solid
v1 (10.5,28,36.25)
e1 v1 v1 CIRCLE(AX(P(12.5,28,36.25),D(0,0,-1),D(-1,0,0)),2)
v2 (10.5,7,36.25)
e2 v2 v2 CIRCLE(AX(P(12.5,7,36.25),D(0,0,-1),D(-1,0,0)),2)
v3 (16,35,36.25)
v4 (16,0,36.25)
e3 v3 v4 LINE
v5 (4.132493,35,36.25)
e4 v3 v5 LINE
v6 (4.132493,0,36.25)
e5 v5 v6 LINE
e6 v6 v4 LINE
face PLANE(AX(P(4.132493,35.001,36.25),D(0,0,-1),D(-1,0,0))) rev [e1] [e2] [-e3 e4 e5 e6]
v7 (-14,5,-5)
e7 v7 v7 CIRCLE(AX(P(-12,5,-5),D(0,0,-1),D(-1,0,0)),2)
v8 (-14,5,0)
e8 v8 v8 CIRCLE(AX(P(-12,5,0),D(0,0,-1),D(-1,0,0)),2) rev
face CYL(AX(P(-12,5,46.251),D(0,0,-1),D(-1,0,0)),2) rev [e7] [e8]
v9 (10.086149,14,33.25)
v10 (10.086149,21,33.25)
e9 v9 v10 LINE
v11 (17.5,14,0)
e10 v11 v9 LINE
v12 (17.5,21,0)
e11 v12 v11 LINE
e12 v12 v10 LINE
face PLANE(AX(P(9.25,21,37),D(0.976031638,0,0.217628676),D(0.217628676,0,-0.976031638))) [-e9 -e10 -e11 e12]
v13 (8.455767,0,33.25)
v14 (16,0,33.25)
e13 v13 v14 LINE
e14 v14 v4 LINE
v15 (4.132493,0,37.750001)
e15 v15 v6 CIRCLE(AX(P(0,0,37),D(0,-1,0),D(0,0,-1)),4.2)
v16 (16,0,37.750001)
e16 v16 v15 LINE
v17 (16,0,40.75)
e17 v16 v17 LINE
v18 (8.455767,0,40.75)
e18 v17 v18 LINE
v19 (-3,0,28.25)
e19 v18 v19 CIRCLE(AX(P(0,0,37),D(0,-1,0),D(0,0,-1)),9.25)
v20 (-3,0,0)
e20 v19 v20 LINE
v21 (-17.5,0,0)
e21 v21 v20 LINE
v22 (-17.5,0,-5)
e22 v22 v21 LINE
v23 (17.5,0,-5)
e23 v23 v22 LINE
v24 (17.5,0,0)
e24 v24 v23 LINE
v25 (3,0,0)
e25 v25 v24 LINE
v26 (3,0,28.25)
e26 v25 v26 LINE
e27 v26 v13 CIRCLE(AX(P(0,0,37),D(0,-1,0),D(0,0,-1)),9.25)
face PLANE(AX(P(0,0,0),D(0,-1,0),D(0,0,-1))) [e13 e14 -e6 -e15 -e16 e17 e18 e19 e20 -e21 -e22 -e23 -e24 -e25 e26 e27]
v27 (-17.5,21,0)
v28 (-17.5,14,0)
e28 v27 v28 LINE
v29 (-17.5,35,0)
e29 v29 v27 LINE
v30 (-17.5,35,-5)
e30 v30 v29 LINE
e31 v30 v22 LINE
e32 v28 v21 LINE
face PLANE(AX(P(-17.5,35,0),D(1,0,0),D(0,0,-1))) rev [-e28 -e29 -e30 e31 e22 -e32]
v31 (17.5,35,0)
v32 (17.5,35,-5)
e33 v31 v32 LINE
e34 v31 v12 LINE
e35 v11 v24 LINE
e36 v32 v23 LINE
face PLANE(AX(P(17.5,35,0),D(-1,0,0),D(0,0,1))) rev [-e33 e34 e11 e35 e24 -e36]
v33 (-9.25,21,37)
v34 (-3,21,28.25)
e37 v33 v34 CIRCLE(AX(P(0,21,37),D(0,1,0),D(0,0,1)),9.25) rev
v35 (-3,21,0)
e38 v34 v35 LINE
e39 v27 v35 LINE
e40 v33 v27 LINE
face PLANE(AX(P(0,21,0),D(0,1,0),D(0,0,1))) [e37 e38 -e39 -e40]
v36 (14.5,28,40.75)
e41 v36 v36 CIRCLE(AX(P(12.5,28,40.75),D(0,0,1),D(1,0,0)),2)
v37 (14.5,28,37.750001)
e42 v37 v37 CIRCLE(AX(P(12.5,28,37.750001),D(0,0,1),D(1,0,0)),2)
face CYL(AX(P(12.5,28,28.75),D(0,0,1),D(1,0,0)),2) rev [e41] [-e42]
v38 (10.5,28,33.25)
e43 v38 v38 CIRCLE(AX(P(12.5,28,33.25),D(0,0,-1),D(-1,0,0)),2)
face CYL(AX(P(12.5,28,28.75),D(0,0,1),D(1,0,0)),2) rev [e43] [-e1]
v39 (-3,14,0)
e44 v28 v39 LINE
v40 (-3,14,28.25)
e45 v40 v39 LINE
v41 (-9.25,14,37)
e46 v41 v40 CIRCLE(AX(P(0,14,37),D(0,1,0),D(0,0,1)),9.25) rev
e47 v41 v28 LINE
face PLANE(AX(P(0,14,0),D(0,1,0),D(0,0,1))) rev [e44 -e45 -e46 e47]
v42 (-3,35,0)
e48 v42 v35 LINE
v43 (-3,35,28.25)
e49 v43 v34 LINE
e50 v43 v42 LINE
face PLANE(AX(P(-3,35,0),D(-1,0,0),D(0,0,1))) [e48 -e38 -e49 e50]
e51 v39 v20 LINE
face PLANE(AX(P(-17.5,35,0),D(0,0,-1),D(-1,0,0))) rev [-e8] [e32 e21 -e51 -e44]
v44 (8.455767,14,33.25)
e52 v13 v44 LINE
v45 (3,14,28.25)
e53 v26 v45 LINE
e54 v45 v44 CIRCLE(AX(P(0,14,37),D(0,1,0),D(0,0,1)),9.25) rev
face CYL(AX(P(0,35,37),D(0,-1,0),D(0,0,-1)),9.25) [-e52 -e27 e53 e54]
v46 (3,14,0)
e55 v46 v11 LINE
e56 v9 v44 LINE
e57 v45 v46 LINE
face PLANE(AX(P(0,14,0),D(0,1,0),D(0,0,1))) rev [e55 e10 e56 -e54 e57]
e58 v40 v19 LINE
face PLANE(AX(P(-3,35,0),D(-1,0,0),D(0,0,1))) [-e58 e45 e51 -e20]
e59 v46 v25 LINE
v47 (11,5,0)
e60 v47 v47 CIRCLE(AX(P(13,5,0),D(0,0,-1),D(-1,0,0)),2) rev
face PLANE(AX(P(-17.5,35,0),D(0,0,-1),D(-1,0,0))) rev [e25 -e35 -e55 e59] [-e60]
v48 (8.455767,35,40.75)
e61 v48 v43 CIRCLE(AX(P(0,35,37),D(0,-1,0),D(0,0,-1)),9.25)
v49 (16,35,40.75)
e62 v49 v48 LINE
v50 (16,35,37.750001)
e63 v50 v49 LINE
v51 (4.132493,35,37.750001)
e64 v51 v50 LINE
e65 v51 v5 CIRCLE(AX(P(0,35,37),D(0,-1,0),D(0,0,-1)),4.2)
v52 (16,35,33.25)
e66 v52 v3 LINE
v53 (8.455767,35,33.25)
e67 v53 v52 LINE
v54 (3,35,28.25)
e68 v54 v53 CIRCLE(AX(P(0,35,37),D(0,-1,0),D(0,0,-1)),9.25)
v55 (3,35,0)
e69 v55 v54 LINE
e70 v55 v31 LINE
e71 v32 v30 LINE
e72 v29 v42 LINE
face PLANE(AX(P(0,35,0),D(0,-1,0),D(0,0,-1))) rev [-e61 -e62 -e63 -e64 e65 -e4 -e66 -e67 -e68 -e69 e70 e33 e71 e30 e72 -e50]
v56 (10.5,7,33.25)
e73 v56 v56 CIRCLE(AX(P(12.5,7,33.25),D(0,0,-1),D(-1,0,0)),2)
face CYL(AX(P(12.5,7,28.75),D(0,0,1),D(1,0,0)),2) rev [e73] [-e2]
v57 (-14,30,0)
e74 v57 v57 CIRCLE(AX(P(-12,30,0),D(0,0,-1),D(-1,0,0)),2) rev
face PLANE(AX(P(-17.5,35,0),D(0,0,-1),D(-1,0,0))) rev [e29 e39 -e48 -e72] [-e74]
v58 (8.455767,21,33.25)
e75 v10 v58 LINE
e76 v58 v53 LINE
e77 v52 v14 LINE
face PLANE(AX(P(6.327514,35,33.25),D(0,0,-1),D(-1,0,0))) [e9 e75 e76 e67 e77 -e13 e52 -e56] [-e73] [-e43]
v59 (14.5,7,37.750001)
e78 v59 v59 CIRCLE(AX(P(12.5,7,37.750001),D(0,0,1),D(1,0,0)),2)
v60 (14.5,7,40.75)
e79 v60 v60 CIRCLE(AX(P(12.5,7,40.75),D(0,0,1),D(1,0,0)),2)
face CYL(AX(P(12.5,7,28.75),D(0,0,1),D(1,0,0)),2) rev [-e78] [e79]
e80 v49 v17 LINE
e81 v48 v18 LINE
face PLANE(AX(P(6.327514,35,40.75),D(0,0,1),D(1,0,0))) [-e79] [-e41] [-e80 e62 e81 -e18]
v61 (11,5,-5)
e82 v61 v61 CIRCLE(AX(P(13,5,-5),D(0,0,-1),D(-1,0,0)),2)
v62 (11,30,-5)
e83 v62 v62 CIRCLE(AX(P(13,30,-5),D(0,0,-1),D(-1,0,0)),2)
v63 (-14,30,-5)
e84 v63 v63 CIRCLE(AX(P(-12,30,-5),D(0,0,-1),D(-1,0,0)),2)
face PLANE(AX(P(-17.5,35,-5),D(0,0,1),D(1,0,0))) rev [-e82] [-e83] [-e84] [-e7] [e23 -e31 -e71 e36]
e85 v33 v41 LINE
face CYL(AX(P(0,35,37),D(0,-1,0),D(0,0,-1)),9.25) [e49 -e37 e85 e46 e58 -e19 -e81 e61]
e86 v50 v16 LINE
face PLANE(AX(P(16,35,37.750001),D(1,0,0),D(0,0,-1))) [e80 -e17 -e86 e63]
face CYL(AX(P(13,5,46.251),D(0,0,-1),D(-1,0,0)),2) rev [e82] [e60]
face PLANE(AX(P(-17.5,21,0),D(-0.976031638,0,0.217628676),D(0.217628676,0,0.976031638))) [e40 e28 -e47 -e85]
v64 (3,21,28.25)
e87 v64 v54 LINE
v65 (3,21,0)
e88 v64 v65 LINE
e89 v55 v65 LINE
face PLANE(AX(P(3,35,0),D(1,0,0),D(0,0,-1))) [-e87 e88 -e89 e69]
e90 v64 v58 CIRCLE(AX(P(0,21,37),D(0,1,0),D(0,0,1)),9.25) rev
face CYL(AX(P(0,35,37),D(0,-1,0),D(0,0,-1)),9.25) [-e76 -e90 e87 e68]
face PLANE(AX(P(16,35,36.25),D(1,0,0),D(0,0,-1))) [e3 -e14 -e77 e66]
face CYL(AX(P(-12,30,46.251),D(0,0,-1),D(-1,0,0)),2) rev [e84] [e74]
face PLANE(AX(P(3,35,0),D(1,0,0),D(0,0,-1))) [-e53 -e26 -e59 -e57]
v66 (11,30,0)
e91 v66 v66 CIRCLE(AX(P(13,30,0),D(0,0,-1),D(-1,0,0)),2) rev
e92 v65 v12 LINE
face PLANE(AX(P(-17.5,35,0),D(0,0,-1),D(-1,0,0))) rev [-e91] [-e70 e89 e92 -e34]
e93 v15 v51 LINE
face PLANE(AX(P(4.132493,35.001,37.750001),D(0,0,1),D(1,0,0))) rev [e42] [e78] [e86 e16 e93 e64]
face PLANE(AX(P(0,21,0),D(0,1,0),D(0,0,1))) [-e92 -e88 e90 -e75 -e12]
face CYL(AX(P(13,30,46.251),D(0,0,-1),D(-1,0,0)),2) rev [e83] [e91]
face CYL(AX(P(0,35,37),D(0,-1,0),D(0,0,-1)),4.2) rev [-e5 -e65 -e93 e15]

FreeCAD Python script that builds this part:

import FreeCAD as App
import Part
import Sketcher

V = App.Vector
Q = App.Units.Quantity

doc = App.newDocument("Part")
body = doc.addObject("PartDesign::Body", "Body")

# Sketch on XZ plane
sketch1 = body.newObject("Sketcher::SketchObject", "Sketch")
sketch1.AttachmentSupport = (doc.getObject("XZ_Plane"), [""])
sketch1.MapMode = "FlatFace"
sketch1.addGeometry(Part.LineSegment(V(-17.5, -5, 0), V(-17.5, 0, 0)), False)
sketch1.addGeometry(Part.LineSegment(V(-17.5, 0, 0), V(17.5, 0, 0)), False)
sketch1.addGeometry(Part.LineSegment(V(17.5, 0, 0), V(17.5, -5, 0)), False)
sketch1.addGeometry(Part.LineSegment(V(17.5, -5, 0), V(-17.5, -5, 0)), False)
sketch1.addConstraint(Sketcher.Constraint("Coincident", 0, 2, 1, 1))
sketch1.addConstraint(Sketcher.Constraint("Coincident", 1, 2, 2, 1))
sketch1.addConstraint(Sketcher.Constraint("Coincident", 2, 2, 3, 1))
sketch1.addConstraint(Sketcher.Constraint("Coincident", 3, 2, 0, 1))
sketch1.addConstraint(Sketcher.Constraint("Vertical", 0))
sketch1.addConstraint(Sketcher.Constraint("Horizontal", 1))
sketch1.addConstraint(Sketcher.Constraint("Vertical", 2))
sketch1.addConstraint(Sketcher.Constraint("Horizontal", 3))
sketch1.addConstraint(Sketcher.Constraint("Symmetric", 0, 2, 1, 2, -1, 1))
sketch1.addConstraint(Sketcher.Constraint("DistanceX", 1, 1, 1, 2, Q("35 mm")))
sketch1.addConstraint(Sketcher.Constraint("DistanceY", 0, 1, 0, 2, Q("5 mm")))
pad1 = body.newObject("PartDesign::Pad", "Pad")
pad1.Profile = sketch1
pad1.Length = 35
pad1.Reversed = True
body2 = doc.addObject("PartDesign::Body", "Body001")

# Sketch on XZ plane
sketch2 = body2.newObject("Sketcher::SketchObject", "Sketch001")
sketch2.AttachmentSupport = (doc.getObject("XZ_Plane001"), [""])
sketch2.MapMode = "FlatFace"
sketch2.addGeometry(Part.Circle(V(0, 37, 0), V(0, 0, 1), 9.25), False)
sketch2.addGeometry(Part.Circle(V(0, 37, 0), V(0, 0, 1), 4.2), False)
sketch2.addConstraint(Sketcher.Constraint("Coincident", 1, 3, 0, 3))
sketch2.addConstraint(Sketcher.Constraint("PointOnObject", 0, 3, -2))
sketch2.addConstraint(Sketcher.Constraint("Diameter", 0, Q("18.5 mm")))
sketch2.addConstraint(Sketcher.Constraint("Diameter", 1, Q("8.4 mm")))
sketch2.addConstraint(Sketcher.Constraint("DistanceY", -1, 1, 0, 3, Q("37 mm")))
pad2 = body2.newObject("PartDesign::Pad", "Pad001")
pad2.Profile = sketch2
pad2.Length = 35
pad2.Reversed = True
body.AllowCompound = True
doc.recompute()

boolean = body.newObject("PartDesign::Boolean", "Boolean")
boolean.Type = "Fuse"
boolean.addObjects([body2])

# Sketch on XZ plane
sketch3 = body.newObject("Sketcher::SketchObject", "Sketch002")
sketch3.AttachmentSupport = (doc.getObject("XZ_Plane"), [""])
sketch3.MapMode = "FlatFace"
sketch3.addGeometry(Part.LineSegment(V(-3, 30.710294, 0), V(-3, 0, 0)), False)
sketch3.addGeometry(Part.LineSegment(V(-3, 0, 0), V(3, 0, 0)), False)
sketch3.addGeometry(Part.LineSegment(V(3, 0, 0), V(3, 30.710294, 0)), False)
sketch3.addGeometry(Part.LineSegment(V(3, 30.710294, 0), V(-3, 30.710294, 0)), False)
sketch3.addConstraint(Sketcher.Constraint("Coincident", 0, 2, 1, 1))
sketch3.addConstraint(Sketcher.Constraint("Coincident", 1, 2, 2, 1))
sketch3.addConstraint(Sketcher.Constraint("Coincident", 2, 2, 3, 1))
sketch3.addConstraint(Sketcher.Constraint("Coincident", 3, 2, 0, 1))
sketch3.addConstraint(Sketcher.Constraint("Vertical", 0))
sketch3.addConstraint(Sketcher.Constraint("Horizontal", 1))
sketch3.addConstraint(Sketcher.Constraint("Vertical", 2))
sketch3.addConstraint(Sketcher.Constraint("Horizontal", 3))
sketch3.addConstraint(Sketcher.Constraint("Symmetric", 0, 2, 1, 2, -1, 1))
sketch3.addConstraint(Sketcher.Constraint("DistanceX", 1, 1, 1, 2, Q("6 mm")))
sketch3.addConstraint(Sketcher.Constraint("DistanceY", 0, 2, 0, 1, Q("30.710294 mm")))
pad3 = body.newObject("PartDesign::Pad", "Pad002")
pad3.Profile = sketch3
pad3.Length = 35
pad3.Reversed = True

# Sketch on XZ plane
sketch4 = body.newObject("Sketcher::SketchObject", "Sketch003")
sketch4.AttachmentSupport = (doc.getObject("XZ_Plane"), [""])
sketch4.MapMode = "FlatFace"
sketch4.AttachmentOffset = App.Placement(V(0, 0, -14), App.Rotation())
sketch4.addGeometry(Part.LineSegment(V(-17.5, 0, 0), V(0, 0, 0)), False)
sketch4.addGeometry(Part.LineSegment(V(0, 0, 0), V(-3, 28.25, 0)), False)
sketch4.addGeometry(Part.LineSegment(V(-3, 28.25, 0), V(-9.25, 37, 0)), False)
sketch4.addGeometry(Part.LineSegment(V(-9.25, 37, 0), V(-17.5, 0, 0)), False)
sketch4.addGeometry(Part.LineSegment(V(3, 28.25, 0), V(3, 0, 0)), False)
sketch4.addGeometry(Part.LineSegment(V(3, 0, 0), V(17.5, 0, 0)), False)
sketch4.addGeometry(Part.LineSegment(V(17.5, 0, 0), V(9.25, 37, 0)), False)
sketch4.addGeometry(Part.LineSegment(V(9.25, 37, 0), V(3, 28.25, 0)), False)
sketch4.addConstraint(Sketcher.Constraint("Coincident", 0, 2, 1, 1))
sketch4.addConstraint(Sketcher.Constraint("Coincident", 1, 2, 2, 1))
sketch4.addConstraint(Sketcher.Constraint("Coincident", 2, 2, 3, 1))
sketch4.addConstraint(Sketcher.Constraint("Coincident", 3, 2, 0, 1))
sketch4.addConstraint(Sketcher.Constraint("Coincident", 4, 2, 5, 1))
sketch4.addConstraint(Sketcher.Constraint("Coincident", 5, 2, 6, 1))
sketch4.addConstraint(Sketcher.Constraint("Coincident", 6, 2, 7, 1))
sketch4.addConstraint(Sketcher.Constraint("Coincident", 7, 2, 4, 1))
sketch4.addConstraint(Sketcher.Constraint("Horizontal", 0))
sketch4.addConstraint(Sketcher.Constraint("Vertical", 4))
sketch4.addConstraint(Sketcher.Constraint("Horizontal", 5))
sketch4.addConstraint(Sketcher.Constraint("Coincident", 0, 2, -1, 1))
sketch4.addConstraint(Sketcher.Constraint("Symmetric", 3, 2, 5, 2, -1, 1))
sketch4.addConstraint(Sketcher.Constraint("Symmetric", 2, 2, 6, 2, -2))
sketch4.addConstraint(Sketcher.Constraint("Symmetric", 1, 2, 7, 2, -2))
sketch4.addConstraint(Sketcher.Constraint("DistanceX", 0, 1, 0, 2, Q("17.5 mm")))
sketch4.addConstraint(Sketcher.Constraint("DistanceX", 5, 1, 5, 2, Q("14.5 mm")))
sketch4.addConstraint(Sketcher.Constraint("DistanceY", -1, 1, 2, 2, Q("37 mm")))
sketch4.addConstraint(Sketcher.Constraint("DistanceY", 4, 2, 4, 1, Q("28.25 mm")))
sketch4.addConstraint(Sketcher.Constraint("DistanceX", 2, 2, 6, 2, Q("18.5 mm")))
pad4 = body.newObject("PartDesign::Pad", "Pad003")
pad4.Profile = sketch4
pad4.Length = 7
pad4.Reversed = True

# Sketch on XY plane
sketch5 = body.newObject("Sketcher::SketchObject", "Sketch004")
sketch5.AttachmentSupport = (doc.getObject("XY_Plane"), [""])
sketch5.MapMode = "FlatFace"
sketch5.AttachmentOffset = App.Placement(V(0, 0, -5), App.Rotation())
sketch5.addGeometry(Part.Circle(V(13, 30, 0), V(0, 0, 1), 2), False)
sketch5.addConstraint(Sketcher.Constraint("Diameter", 0, Q("4 mm")))
sketch5.addConstraint(Sketcher.Constraint("DistanceX", -1, 1, 0, 3, Q("13 mm")))
sketch5.addConstraint(Sketcher.Constraint("DistanceY", -1, 1, 0, 3, Q("30 mm")))
pocket1 = body.newObject("PartDesign::Pocket", "Pocket")
pocket1.Profile = sketch5
pocket1.Type = "UpToFirst"
pocket1.Reversed = True

# Sketch on XY plane
sketch6 = body.newObject("Sketcher::SketchObject", "Sketch005")
sketch6.AttachmentSupport = (doc.getObject("XY_Plane"), [""])
sketch6.MapMode = "FlatFace"
sketch6.AttachmentOffset = App.Placement(V(0, 0, -5), App.Rotation())
sketch6.addGeometry(Part.Circle(V(-12, 30, 0), V(0, 0, 1), 2), False)
sketch6.addConstraint(Sketcher.Constraint("Diameter", 0, Q("4 mm")))
sketch6.addConstraint(Sketcher.Constraint("DistanceX", 0, 3, -1, 1, Q("12 mm")))
sketch6.addConstraint(Sketcher.Constraint("DistanceY", -1, 1, 0, 3, Q("30 mm")))
pocket2 = body.newObject("PartDesign::Pocket", "Pocket001")
pocket2.Profile = sketch6
pocket2.Type = "UpToFirst"
pocket2.Reversed = True

# Sketch on XY plane
sketch7 = body.newObject("Sketcher::SketchObject", "Sketch006")
sketch7.AttachmentSupport = (doc.getObject("XY_Plane"), [""])
sketch7.MapMode = "FlatFace"
sketch7.AttachmentOffset = App.Placement(V(0, 0, -5), App.Rotation())
sketch7.addGeometry(Part.Circle(V(-12, 5, 0), V(0, 0, 1), 2), False)
sketch7.addConstraint(Sketcher.Constraint("Diameter", 0, Q("4 mm")))
sketch7.addConstraint(Sketcher.Constraint("DistanceX", 0, 3, -1, 1, Q("12 mm")))
sketch7.addConstraint(Sketcher.Constraint("DistanceY", -1, 1, 0, 3, Q("5 mm")))
pocket3 = body.newObject("PartDesign::Pocket", "Pocket002")
pocket3.Profile = sketch7
pocket3.Type = "UpToFirst"
pocket3.Reversed = True

# Sketch on XY plane
sketch8 = body.newObject("Sketcher::SketchObject", "Sketch007")
sketch8.AttachmentSupport = (doc.getObject("XY_Plane"), [""])
sketch8.MapMode = "FlatFace"
sketch8.AttachmentOffset = App.Placement(V(0, 0, -5), App.Rotation())
sketch8.addGeometry(Part.Circle(V(13, 5, 0), V(0, 0, 1), 2), False)
sketch8.addConstraint(Sketcher.Constraint("Diameter", 0, Q("4 mm")))
sketch8.addConstraint(Sketcher.Constraint("DistanceX", -1, 1, 0, 3, Q("13 mm")))
sketch8.addConstraint(Sketcher.Constraint("DistanceY", -1, 1, 0, 3, Q("5 mm")))
pocket4 = body.newObject("PartDesign::Pocket", "Pocket003")
pocket4.Profile = sketch8
pocket4.Type = "UpToFirst"
pocket4.Reversed = True

# Sketch on XZ plane
sketch9 = body.newObject("Sketcher::SketchObject", "Sketch008")
sketch9.AttachmentSupport = (doc.getObject("XZ_Plane"), [""])
sketch9.MapMode = "FlatFace"
sketch9.addGeometry(Part.LineSegment(V(4.132493, 37.750001, 0), V(4.132493, 36.25, 0)), False)
sketch9.addGeometry(Part.LineSegment(V(4.132493, 36.25, 0), V(14.770381, 36.25, 0)), False)
sketch9.addGeometry(Part.LineSegment(V(14.770381, 36.25, 0), V(14.770381, 37.750001, 0)), False)
sketch9.addGeometry(Part.LineSegment(V(14.770381, 37.750001, 0), V(4.132493, 37.750001, 0)), False)
sketch9.addConstraint(Sketcher.Constraint("Coincident", 0, 2, 1, 1))
sketch9.addConstraint(Sketcher.Constraint("Coincident", 1, 2, 2, 1))
sketch9.addConstraint(Sketcher.Constraint("Coincident", 2, 2, 3, 1))
sketch9.addConstraint(Sketcher.Constraint("Coincident", 3, 2, 0, 1))
sketch9.addConstraint(Sketcher.Constraint("Vertical", 0))
sketch9.addConstraint(Sketcher.Constraint("Horizontal", 1))
sketch9.addConstraint(Sketcher.Constraint("Vertical", 2))
sketch9.addConstraint(Sketcher.Constraint("Horizontal", 3))
sketch9.addConstraint(Sketcher.Constraint("DistanceY", 0, 2, 0, 1, Q("1.500001 mm")))
sketch9.addConstraint(Sketcher.Constraint("DistanceY", -1, 1, 0, 2, Q("36.25 mm")))
sketch9.addConstraint(Sketcher.Constraint("DistanceX", 1, 1, 1, 2, Q("10.637888 mm")))
sketch9.addConstraint(Sketcher.Constraint("DistanceX", -1, 1, 1, 2, Q("14.770381 mm")))
pocket5 = body.newObject("PartDesign::Pocket", "Pocket004")
pocket5.Profile = sketch9
pocket5.Length = 35

# Sketch on XZ plane
sketch10 = body.newObject("Sketcher::SketchObject", "Sketch009")
sketch10.AttachmentSupport = (doc.getObject("XZ_Plane"), [""])
sketch10.MapMode = "FlatFace"
sketch10.addGeometry(Part.LineSegment(V(16, 33.25, 0), V(16, 36.25, 0)), False)
sketch10.addGeometry(Part.LineSegment(V(16, 36.25, 0), V(6.327514, 36.25, 0)), False)
sketch10.addGeometry(Part.LineSegment(V(6.327514, 36.25, 0), V(6.327514, 33.25, 0)), False)
sketch10.addGeometry(Part.LineSegment(V(6.327514, 33.25, 0), V(16, 33.25, 0)), False)
sketch10.addGeometry(Part.LineSegment(V(16, 37.750001, 0), V(16, 40.75, 0)), False)
sketch10.addGeometry(Part.LineSegment(V(16, 40.75, 0), V(6.327514, 40.75, 0)), False)
sketch10.addGeometry(Part.LineSegment(V(6.327514, 40.75, 0), V(6.327514, 37.750001, 0)), False)
sketch10.addGeometry(Part.LineSegment(V(6.327514, 37.750001, 0), V(16, 37.750001, 0)), False)
sketch10.addConstraint(Sketcher.Constraint("Coincident", 0, 2, 1, 1))
sketch10.addConstraint(Sketcher.Constraint("Coincident", 1, 2, 2, 1))
sketch10.addConstraint(Sketcher.Constraint("Coincident", 2, 2, 3, 1))
sketch10.addConstraint(Sketcher.Constraint("Coincident", 3, 2, 0, 1))
sketch10.addConstraint(Sketcher.Constraint("Coincident", 4, 2, 5, 1))
sketch10.addConstraint(Sketcher.Constraint("Coincident", 5, 2, 6, 1))
sketch10.addConstraint(Sketcher.Constraint("Coincident", 6, 2, 7, 1))
sketch10.addConstraint(Sketcher.Constraint("Coincident", 7, 2, 4, 1))
sketch10.addConstraint(Sketcher.Constraint("Vertical", 0))
sketch10.addConstraint(Sketcher.Constraint("Horizontal", 1))
sketch10.addConstraint(Sketcher.Constraint("Vertical", 2))
sketch10.addConstraint(Sketcher.Constraint("Horizontal", 3))
sketch10.addConstraint(Sketcher.Constraint("Vertical", 4))
sketch10.addConstraint(Sketcher.Constraint("Horizontal", 5))
sketch10.addConstraint(Sketcher.Constraint("Vertical", 6))
sketch10.addConstraint(Sketcher.Constraint("Horizontal", 7))
sketch10.addConstraint(Sketcher.Constraint("Vertical", 3, 2, 4, 2))
sketch10.addConstraint(Sketcher.Constraint("Vertical", 2, 2, 5, 2))
sketch10.addConstraint(Sketcher.Constraint("Equal", 2, 4))
sketch10.addConstraint(Sketcher.Constraint("DistanceY", 0, 1, 0, 2, Q("3 mm")))
sketch10.addConstraint(Sketcher.Constraint("DistanceX", -1, 1, 0, 2, Q("16 mm")))
sketch10.addConstraint(Sketcher.Constraint("DistanceY", 0, 2, 4, 2, Q("4.5 mm")))
sketch10.addConstraint(Sketcher.Constraint("DistanceY", -1, 1, 0, 2, Q("36.25 mm")))
sketch10.addConstraint(Sketcher.Constraint("DistanceX", 1, 2, 1, 1, Q("9.672486 mm")))
pad5 = body.newObject("PartDesign::Pad", "Pad004")
pad5.Profile = sketch10
pad5.Length = 35
pad5.Reversed = True

# Sketch on XY plane
sketch11 = body.newObject("Sketcher::SketchObject", "Sketch010")
sketch11.AttachmentSupport = (doc.getObject("XY_Plane"), [""])
sketch11.MapMode = "FlatFace"
sketch11.AttachmentOffset = App.Placement(V(0, 0, 40.75), App.Rotation())
sketch11.addGeometry(Part.Circle(V(12.5, 28, 0), V(0, 0, 1), 2), False)
sketch11.addGeometry(Part.Circle(V(12.5, 7, 0), V(0, 0, 1), 2), False)
sketch11.addConstraint(Sketcher.Constraint("Equal", 0, 1))
sketch11.addConstraint(Sketcher.Constraint("Vertical", 0, 3, 1, 3))
sketch11.addConstraint(Sketcher.Constraint("Diameter", 0, Q("4 mm")))
sketch11.addConstraint(Sketcher.Constraint("DistanceY", -1, 1, 0, 3, Q("28 mm")))
sketch11.addConstraint(Sketcher.Constraint("DistanceY", -1, 1, 1, 3, Q("7 mm")))
sketch11.addConstraint(Sketcher.Constraint("DistanceX", -1, 1, 0, 3, Q("12.5 mm")))
pocket6 = body.newObject("PartDesign::Pocket", "Pocket005")
pocket6.Profile = sketch11
pocket6.Length = 12

doc.recompute()
